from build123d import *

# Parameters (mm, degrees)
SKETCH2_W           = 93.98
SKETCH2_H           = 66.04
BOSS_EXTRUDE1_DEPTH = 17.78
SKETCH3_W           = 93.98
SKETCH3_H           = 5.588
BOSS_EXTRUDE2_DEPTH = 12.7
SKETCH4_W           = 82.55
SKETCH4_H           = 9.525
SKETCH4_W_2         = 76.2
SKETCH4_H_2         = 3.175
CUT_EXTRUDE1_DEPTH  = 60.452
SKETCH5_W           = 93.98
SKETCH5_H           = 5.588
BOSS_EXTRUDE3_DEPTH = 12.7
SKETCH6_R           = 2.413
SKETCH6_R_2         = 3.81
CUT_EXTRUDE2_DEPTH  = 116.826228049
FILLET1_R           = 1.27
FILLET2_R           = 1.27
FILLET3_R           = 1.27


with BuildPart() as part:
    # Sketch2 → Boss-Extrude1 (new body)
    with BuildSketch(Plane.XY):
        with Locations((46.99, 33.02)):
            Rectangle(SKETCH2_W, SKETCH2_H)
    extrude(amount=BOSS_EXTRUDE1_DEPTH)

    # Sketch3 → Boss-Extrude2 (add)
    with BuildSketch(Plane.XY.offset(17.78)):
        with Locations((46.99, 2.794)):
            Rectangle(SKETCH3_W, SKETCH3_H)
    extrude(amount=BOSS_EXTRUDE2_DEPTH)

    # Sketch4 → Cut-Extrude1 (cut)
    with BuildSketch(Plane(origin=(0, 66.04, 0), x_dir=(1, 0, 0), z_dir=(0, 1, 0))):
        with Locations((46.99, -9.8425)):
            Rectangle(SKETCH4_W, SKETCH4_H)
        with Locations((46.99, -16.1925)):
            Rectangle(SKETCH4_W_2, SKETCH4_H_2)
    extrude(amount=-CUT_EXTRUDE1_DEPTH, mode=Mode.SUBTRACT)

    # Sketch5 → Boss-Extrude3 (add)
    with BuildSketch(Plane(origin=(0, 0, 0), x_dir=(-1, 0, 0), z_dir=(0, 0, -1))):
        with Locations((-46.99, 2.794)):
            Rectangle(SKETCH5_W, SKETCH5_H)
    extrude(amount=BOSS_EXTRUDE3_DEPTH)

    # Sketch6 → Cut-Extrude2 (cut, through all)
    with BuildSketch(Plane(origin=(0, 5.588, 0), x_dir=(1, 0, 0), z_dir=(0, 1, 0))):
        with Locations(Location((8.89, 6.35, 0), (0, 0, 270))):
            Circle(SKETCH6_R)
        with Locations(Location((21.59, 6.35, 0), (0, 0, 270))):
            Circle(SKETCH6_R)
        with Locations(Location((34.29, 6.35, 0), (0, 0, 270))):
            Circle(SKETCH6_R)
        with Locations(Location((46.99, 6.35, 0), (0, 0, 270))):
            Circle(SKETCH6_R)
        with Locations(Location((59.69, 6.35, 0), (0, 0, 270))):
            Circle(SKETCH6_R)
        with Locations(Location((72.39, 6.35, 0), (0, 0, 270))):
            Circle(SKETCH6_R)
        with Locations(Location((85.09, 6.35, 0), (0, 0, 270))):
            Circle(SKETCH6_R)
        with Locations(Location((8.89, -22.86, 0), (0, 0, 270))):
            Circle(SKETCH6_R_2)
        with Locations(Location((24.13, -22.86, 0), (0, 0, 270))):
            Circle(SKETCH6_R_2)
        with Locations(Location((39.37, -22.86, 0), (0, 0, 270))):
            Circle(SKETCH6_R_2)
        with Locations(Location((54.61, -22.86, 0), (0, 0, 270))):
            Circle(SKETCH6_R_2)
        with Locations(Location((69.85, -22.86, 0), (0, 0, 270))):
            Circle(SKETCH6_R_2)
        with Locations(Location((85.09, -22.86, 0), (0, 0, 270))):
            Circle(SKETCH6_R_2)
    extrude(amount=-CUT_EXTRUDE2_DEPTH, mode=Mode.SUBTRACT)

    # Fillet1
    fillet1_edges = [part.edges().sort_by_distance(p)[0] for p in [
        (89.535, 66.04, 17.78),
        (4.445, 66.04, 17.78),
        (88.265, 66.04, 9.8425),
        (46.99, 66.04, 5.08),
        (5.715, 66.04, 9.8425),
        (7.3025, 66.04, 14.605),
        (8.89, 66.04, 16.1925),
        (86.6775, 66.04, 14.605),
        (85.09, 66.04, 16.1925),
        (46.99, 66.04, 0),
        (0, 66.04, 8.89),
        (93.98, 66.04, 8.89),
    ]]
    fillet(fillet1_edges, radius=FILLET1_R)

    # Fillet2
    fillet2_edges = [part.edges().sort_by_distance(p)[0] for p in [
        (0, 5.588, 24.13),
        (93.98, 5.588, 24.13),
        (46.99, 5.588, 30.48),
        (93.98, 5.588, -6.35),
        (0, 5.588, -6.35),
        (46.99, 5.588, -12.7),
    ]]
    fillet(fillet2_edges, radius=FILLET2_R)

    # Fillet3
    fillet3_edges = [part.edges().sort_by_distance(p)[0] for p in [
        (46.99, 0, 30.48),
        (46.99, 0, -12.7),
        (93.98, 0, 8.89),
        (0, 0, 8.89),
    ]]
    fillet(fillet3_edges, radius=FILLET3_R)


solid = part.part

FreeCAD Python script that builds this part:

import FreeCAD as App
import Part
import Sketcher
Q = App.Units.Quantity


def edges_at(feature, points):
    """Names of the edges that pass closest to the given points."""
    edges = feature.Shape.Edges
    near = lambda p: min(range(len(edges)), key=lambda i: edges[i].distToShape(Part.Vertex(*p))[0])
    return sorted({f"Edge{near(p) + 1}" for p in points})

doc = App.newDocument("Part")
params = doc.addObject("Spreadsheet::Sheet", "Params")
for row, (alias, value) in enumerate([
    ("sketch1_width", "3.7 in"),
    ("sketch1_height", "2.6 in"),
    ("pad1_length", "0.7 in"),
    ("sketch2_width", "3.7 in"),
    ("sketch2_height", "0.22 in"),
    ("pad2_length", "0.5 in"),
    ("sketch3_width", "3 in"),
    ("sketch3_width2", "3.25 in"),
    ("pocket1_length", "2.38 in"),
    ("sketch4_width", "3.7 in"),
    ("sketch4_height", "0.22 in"),
    ("pad3_length", "0.5 in"),
    ("sketch5_diameter", "0.3 in"),
    ("sketch5_diameter2", "0.19 in"),
    ("fillet_radius", "0.05 in"),
    ("fillet2_radius", "0.05 in"),
    ("fillet3_radius", "0.05 in"),
], start=1):
    params.set(f"A{row}", alias)
    params.set(f"B{row}", "=" + value)
    params.setAlias(f"B{row}", alias)

body = doc.addObject("PartDesign::Body", "Body")

# Sketch on XY plane
sketch1 = body.newObject("Sketcher::SketchObject", "Sketch")
sketch1.AttachmentSupport = (doc.getObject("XY_Plane"), [""])
sketch1.MapMode = "FlatFace"
sketch1.addGeometry(Part.LineSegment(App.Vector(0, 66, 0), App.Vector(0, 0, 0)), False)
sketch1.addGeometry(Part.LineSegment(App.Vector(0, 0, 0), App.Vector(94, 0, 0)), False)
sketch1.addGeometry(Part.LineSegment(App.Vector(94, 0, 0), App.Vector(94, 66, 0)), False)
sketch1.addGeometry(Part.LineSegment(App.Vector(94, 66, 0), App.Vector(0, 66, 0)), False)
sketch1.addConstraint(Sketcher.Constraint("Coincident", 0, 2, 1, 1))
sketch1.addConstraint(Sketcher.Constraint("Coincident", 1, 2, 2, 1))
sketch1.addConstraint(Sketcher.Constraint("Coincident", 2, 2, 3, 1))
sketch1.addConstraint(Sketcher.Constraint("Coincident", 3, 2, 0, 1))
sketch1.addConstraint(Sketcher.Constraint("Vertical", 0))
sketch1.addConstraint(Sketcher.Constraint("Horizontal", 1))
sketch1.addConstraint(Sketcher.Constraint("Vertical", 2))
sketch1.addConstraint(Sketcher.Constraint("Horizontal", 3))
sketch1.addConstraint(Sketcher.Constraint("Coincident", 0, 2, -1, 1))
sketch1.addConstraint(Sketcher.Constraint("DistanceX", 1, 1, 1, 2, Q("3.7 in")))
sketch1.addConstraint(Sketcher.Constraint("DistanceY", 0, 2, 0, 1, Q("2.6 in")))
sketch1.setExpression("Constraints[9]", "Params.sketch1_width")
sketch1.setExpression("Constraints[10]", "Params.sketch1_height")
pad1 = body.newObject("PartDesign::Pad", "Pad")
pad1.Profile = sketch1
pad1.setExpression("Length", "Params.pad1_length")

# Sketch on XY plane
sketch2 = body.newObject("Sketcher::SketchObject", "Sketch001")
sketch2.AttachmentSupport = (doc.getObject("XY_Plane"), [""])
sketch2.MapMode = "FlatFace"
sketch2.AttachmentOffset = App.Placement(App.Vector(0, 0, 0.7 * 25.4), App.Rotation())
sketch2.addGeometry(Part.LineSegment(App.Vector(0, 6, 0), App.Vector(0, 0, 0)), False)
sketch2.addGeometry(Part.LineSegment(App.Vector(0, 0, 0), App.Vector(94, 0, 0)), False)
sketch2.addGeometry(Part.LineSegment(App.Vector(94, 0, 0), App.Vector(94, 6, 0)), False)
sketch2.addGeometry(Part.LineSegment(App.Vector(94, 6, 0), App.Vector(0, 6, 0)), False)
sketch2.addConstraint(Sketcher.Constraint("Coincident", 0, 2, 1, 1))
sketch2.addConstraint(Sketcher.Constraint("Coincident", 1, 2, 2, 1))
sketch2.addConstraint(Sketcher.Constraint("Coincident", 2, 2, 3, 1))
sketch2.addConstraint(Sketcher.Constraint("Coincident", 3, 2, 0, 1))
sketch2.addConstraint(Sketcher.Constraint("Vertical", 0))
sketch2.addConstraint(Sketcher.Constraint("Horizontal", 1))
sketch2.addConstraint(Sketcher.Constraint("Vertical", 2))
sketch2.addConstraint(Sketcher.Constraint("Horizontal", 3))
sketch2.addConstraint(Sketcher.Constraint("Coincident", 0, 2, -1, 1))
sketch2.addConstraint(Sketcher.Constraint("DistanceX", 1, 1, 1, 2, Q("3.7 in")))
sketch2.addConstraint(Sketcher.Constraint("DistanceY", 0, 2, 0, 1, Q("0.22 in")))
sketch2.setExpression("Constraints[9]", "Params.sketch2_width")
sketch2.setExpression("Constraints[10]", "Params.sketch2_height")
pad2 = body.newObject("PartDesign::Pad", "Pad001")
pad2.Profile = sketch2
pad2.setExpression("Length", "Params.pad2_length")

# Sketch on XZ plane
sketch3 = body.newObject("Sketcher::SketchObject", "Sketch002")
sketch3.AttachmentSupport = (doc.getObject("XZ_Plane"), [""])
sketch3.MapMode = "FlatFace"
sketch3.AttachmentOffset = App.Placement(App.Vector(0, 0, -2.6 * 25.4), App.Rotation())
sketch3.addGeometry(Part.LineSegment(App.Vector(5.7, 5.1, 0), App.Vector(5.7, 14.6, 0)), False)
sketch3.addGeometry(Part.LineSegment(App.Vector(5.7, 14.6, 0), App.Vector(8.9, 14.6, 0)), False)
sketch3.addGeometry(Part.LineSegment(App.Vector(8.9, 14.6, 0), App.Vector(8.9, 17.8, 0)), False)
sketch3.addGeometry(Part.LineSegment(App.Vector(8.9, 17.8, 0), App.Vector(85.1, 17.8, 0)), False)
sketch3.addGeometry(Part.LineSegment(App.Vector(85.1, 17.8, 0), App.Vector(85.1, 14.6, 0)), False)
sketch3.addGeometry(Part.LineSegment(App.Vector(85.1, 14.6, 0), App.Vector(88.3, 14.6, 0)), False)
sketch3.addGeometry(Part.LineSegment(App.Vector(88.3, 14.6, 0), App.Vector(88.3, 5.1, 0)), False)
sketch3.addGeometry(Part.LineSegment(App.Vector(88.3, 5.1, 0), App.Vector(5.7, 5.1, 0)), False)
sketch3.addConstraint(Sketcher.Constraint("Coincident", 0, 2, 1, 1))
sketch3.addConstraint(Sketcher.Constraint("Coincident", 1, 2, 2, 1))
sketch3.addConstraint(Sketcher.Constraint("Coincident", 2, 2, 3, 1))
sketch3.addConstraint(Sketcher.Constraint("Coincident", 3, 2, 4, 1))
sketch3.addConstraint(Sketcher.Constraint("Coincident", 4, 2, 5, 1))
sketch3.addConstraint(Sketcher.Constraint("Coincident", 5, 2, 6, 1))
sketch3.addConstraint(Sketcher.Constraint("Coincident", 6, 2, 7, 1))
sketch3.addConstraint(Sketcher.Constraint("Coincident", 7, 2, 0, 1))
sketch3.addConstraint(Sketcher.Constraint("Vertical", 0))
sketch3.addConstraint(Sketcher.Constraint("Horizontal", 1))
sketch3.addConstraint(Sketcher.Constraint("Vertical", 2))
sketch3.addConstraint(Sketcher.Constraint("Horizontal", 3))
sketch3.addConstraint(Sketcher.Constraint("Vertical", 4))
sketch3.addConstraint(Sketcher.Constraint("Horizontal", 5))
sketch3.addConstraint(Sketcher.Constraint("Vertical", 6))
sketch3.addConstraint(Sketcher.Constraint("Horizontal", 7))
sketch3.addConstraint(Sketcher.Constraint("Horizontal", 1, 2, 4, 2))
sketch3.addConstraint(Sketcher.Constraint("Equal", 1, 5))
sketch3.addConstraint(Sketcher.Constraint("Equal", 5, 2))
sketch3.addConstraint(Sketcher.Constraint("DistanceX", 3, 1, 3, 2, Q("3 in")))
sketch3.addConstraint(Sketcher.Constraint("DistanceX", 7, 2, 7, 1, Q("3.25 in")))
sketch3.addConstraint(Sketcher.Constraint("DistanceY", -1, 1, 2, 2, Q("0.7 in")))
sketch3.addConstraint(Sketcher.Constraint("DistanceY", -1, 1, 6, 2, Q("0.2 in")))
sketch3.addConstraint(Sketcher.Constraint("DistanceX", -1, 1, 1, 2, Q("0.35 in")))
sketch3.setExpression("Constraints[19]", "Params.sketch3_width")
sketch3.setExpression("Constraints[20]", "Params.sketch3_width2")
pocket1 = body.newObject("PartDesign::Pocket", "Pocket")
pocket1.Profile = sketch3
pocket1.setExpression("Length", "Params.pocket1_length")
pocket1.Reversed = True

# Sketch on XY plane
sketch4 = body.newObject("Sketcher::SketchObject", "Sketch003")
sketch4.AttachmentSupport = (doc.getObject("XY_Plane"), [""])
sketch4.MapMode = "FlatFace"
sketch4.addGeometry(Part.LineSegment(App.Vector(94, 6, 0), App.Vector(94, 0, 0)), False)
sketch4.addGeometry(Part.LineSegment(App.Vector(94, 0, 0), App.Vector(0, 0, 0)), False)
sketch4.addGeometry(Part.LineSegment(App.Vector(0, 0, 0), App.Vector(0, 6, 0)), False)
sketch4.addGeometry(Part.LineSegment(App.Vector(0, 6, 0), App.Vector(94, 6, 0)), False)
sketch4.addConstraint(Sketcher.Constraint("Coincident", 0, 2, 1, 1))
sketch4.addConstraint(Sketcher.Constraint("Coincident", 1, 2, 2, 1))
sketch4.addConstraint(Sketcher.Constraint("Coincident", 2, 2, 3, 1))
sketch4.addConstraint(Sketcher.Constraint("Coincident", 3, 2, 0, 1))
sketch4.addConstraint(Sketcher.Constraint("Vertical", 0))
sketch4.addConstraint(Sketcher.Constraint("Horizontal", 1))
sketch4.addConstraint(Sketcher.Constraint("Vertical", 2))
sketch4.addConstraint(Sketcher.Constraint("Horizontal", 3))
sketch4.addConstraint(Sketcher.Constraint("Coincident", 1, 2, -1, 1))
sketch4.addConstraint(Sketcher.Constraint("DistanceX", 1, 2, 1, 1, Q("3.7 in")))
sketch4.addConstraint(Sketcher.Constraint("DistanceY", 0, 2, 0, 1, Q("0.22 in")))
sketch4.setExpression("Constraints[9]", "Params.sketch4_width")
sketch4.setExpression("Constraints[10]", "Params.sketch4_height")
pad3 = body.newObject("PartDesign::Pad", "Pad002")
pad3.Profile = sketch4
pad3.setExpression("Length", "Params.pad3_length")
pad3.Reversed = True

# Sketch on XZ plane
sketch5 = body.newObject("Sketcher::SketchObject", "Sketch004")
sketch5.AttachmentSupport = (doc.getObject("XZ_Plane"), [""])
sketch5.MapMode = "FlatFace"
sketch5.AttachmentOffset = App.Placement(App.Vector(0, 0, -0.22 * 25.4), App.Rotation())
sketch5.addGeometry(Part.Circle(App.Vector(8.9, -6.3, 0), App.Vector(0, 0, 1), 2.4), False)
sketch5.addGeometry(Part.Circle(App.Vector(21.6, -6.3, 0), App.Vector(0, 0, 1), 2.4), False)
sketch5.addGeometry(Part.Circle(App.Vector(34.3, -6.3, 0), App.Vector(0, 0, 1), 2.4), False)
sketch5.addGeometry(Part.Circle(App.Vector(47, -6.3, 0), App.Vector(0, 0, 1), 2.4), False)
sketch5.addGeometry(Part.Circle(App.Vector(59.7, -6.3, 0), App.Vector(0, 0, 1), 2.4), False)
sketch5.addGeometry(Part.Circle(App.Vector(72.4, -6.3, 0), App.Vector(0, 0, 1), 2.4), False)
sketch5.addGeometry(Part.Circle(App.Vector(85.1, -6.3, 0), App.Vector(0, 0, 1), 2.4), False)
sketch5.addGeometry(Part.Circle(App.Vector(8.9, 22.9, 0), App.Vector(0, 0, 1), 3.8), False)
sketch5.addGeometry(Part.Circle(App.Vector(24.1, 22.9, 0), App.Vector(0, 0, 1), 3.8), False)
sketch5.addGeometry(Part.Circle(App.Vector(39.4, 22.9, 0), App.Vector(0, 0, 1), 3.8), False)
sketch5.addGeometry(Part.Circle(App.Vector(54.6, 22.9, 0), App.Vector(0, 0, 1), 3.8), False)
sketch5.addGeometry(Part.Circle(App.Vector(69.8, 22.9, 0), App.Vector(0, 0, 1), 3.8), False)
sketch5.addGeometry(Part.Circle(App.Vector(85.1, 22.9, 0), App.Vector(0, 0, 1), 3.8), False)
sketch5.addConstraint(Sketcher.Constraint("Equal", 0, 1))
sketch5.addConstraint(Sketcher.Constraint("Equal", 1, 2))
sketch5.addConstraint(Sketcher.Constraint("Equal", 2, 3))
sketch5.addConstraint(Sketcher.Constraint("Equal", 3, 4))
sketch5.addConstraint(Sketcher.Constraint("Equal", 4, 5))
sketch5.addConstraint(Sketcher.Constraint("Equal", 5, 6))
sketch5.addConstraint(Sketcher.Constraint("Equal", 7, 8))
sketch5.addConstraint(Sketcher.Constraint("Equal", 8, 9))
sketch5.addConstraint(Sketcher.Constraint("Equal", 9, 10))
sketch5.addConstraint(Sketcher.Constraint("Equal", 10, 11))
sketch5.addConstraint(Sketcher.Constraint("Equal", 11, 12))
sketch5.addConstraint(Sketcher.Constraint("Horizontal", 0, 3, 1, 3))
sketch5.addConstraint(Sketcher.Constraint("Horizontal", 1, 3, 2, 3))
sketch5.addConstraint(Sketcher.Constraint("Horizontal", 2, 3, 3, 3))
sketch5.addConstraint(Sketcher.Constraint("Horizontal", 3, 3, 4, 3))
sketch5.addConstraint(Sketcher.Constraint("Horizontal", 4, 3, 5, 3))
sketch5.addConstraint(Sketcher.Constraint("Horizontal", 5, 3, 6, 3))
sketch5.addConstraint(Sketcher.Constraint("Horizontal", 7, 3, 8, 3))
sketch5.addConstraint(Sketcher.Constraint("Horizontal", 8, 3, 9, 3))
sketch5.addConstraint(Sketcher.Constraint("Horizontal", 9, 3, 10, 3))
sketch5.addConstraint(Sketcher.Constraint("Horizontal", 10, 3, 11, 3))
sketch5.addConstraint(Sketcher.Constraint("Horizontal", 11, 3, 12, 3))
sketch5.addConstraint(Sketcher.Constraint("Vertical", 0, 3, 7, 3))
sketch5.addConstraint(Sketcher.Constraint("Vertical", 6, 3, 12, 3))
sketch5.addConstraint(Sketcher.Constraint("Diameter", 7, Q("0.3 in")))
sketch5.addConstraint(Sketcher.Constraint("Diameter", 0, Q("0.19 in")))
sketch5.addConstraint(Sketcher.Constraint("DistanceX", 0, 3, 2, 3, Q("1 in")))
sketch5.addConstraint(Sketcher.Constraint("DistanceX", 1, 3, 3, 3, Q("1 in")))
sketch5.addConstraint(Sketcher.Constraint("DistanceX", 2, 3, 4, 3, Q("1 in")))
sketch5.addConstraint(Sketcher.Constraint("DistanceX", 3, 3, 5, 3, Q("1 in")))
sketch5.addConstraint(Sketcher.Constraint("DistanceX", 4, 3, 6, 3, Q("1 in")))
sketch5.addConstraint(Sketcher.Constraint("DistanceY", -1, 1, 7, 3, Q("0.9 in")))
sketch5.addConstraint(Sketcher.Constraint("DistanceX", 0, 3, 1, 3, Q("0.5 in")))
sketch5.addConstraint(Sketcher.Constraint("DistanceX", 7, 3, 8, 3, Q("0.6 in")))
sketch5.addConstraint(Sketcher.Constraint("DistanceX", 8, 3, 9, 3, Q("0.6 in")))
sketch5.addConstraint(Sketcher.Constraint("DistanceX", 9, 3, 10, 3, Q("0.6 in")))
sketch5.addConstraint(Sketcher.Constraint("DistanceX", 10, 3, 11, 3, Q("0.6 in")))
sketch5.addConstraint(Sketcher.Constraint("DistanceX", -1, 1, 0, 3, Q("0.35 in")))
sketch5.addConstraint(Sketcher.Constraint("DistanceY", 0, 3, -1, 1, Q("0.25 in")))
sketch5.setExpression("Constraints[24]", "Params.sketch5_diameter")
sketch5.setExpression("Constraints[25]", "Params.sketch5_diameter2")
pocket2 = body.newObject("PartDesign::Pocket", "Pocket001")
pocket2.Profile = sketch5
pocket2.Type = "ThroughAll"
pocket2.Reversed = True
doc.recompute()

fillet = body.newObject("PartDesign::Fillet", "Fillet")
fillet.Base = (pocket2, edges_at(pocket2, [
    (89.535, 66.04, 17.78),
    (4.445, 66.04, 17.78),
    (88.265, 66.04, 9.842),
    (46.99, 66.04, 5.08),
    (5.715, 66.04, 9.842),
    (7.303, 66.04, 14.605),
    (8.89, 66.04, 16.192),
    (86.677, 66.04, 14.605),
    (85.09, 66.04, 16.192),
    (46.99, 66.04, 0),
    (0, 66.04, 8.89),
    (93.98, 66.04, 8.89),
]))
fillet.setExpression("Radius", "Params.fillet_radius")
doc.recompute()

fillet2 = body.newObject("PartDesign::Fillet", "Fillet001")
fillet2.Base = (fillet, edges_at(fillet, [
    (0, 5.588, 24.13),
    (93.98, 5.588, 24.13),
    (46.99, 5.588, 30.48),
    (93.98, 5.588, -6.35),
    (0, 5.588, -6.35),
    (46.99, 5.588, -12.7),
]))
fillet2.setExpression("Radius", "Params.fillet2_radius")
doc.recompute()

fillet3 = body.newObject("PartDesign::Fillet", "Fillet002")
fillet3.Base = (fillet2, edges_at(fillet2, [
    (46.99, 0, 30.48),
    (46.99, 0, -12.7),
    (93.98, 0, 8.89),
    (0, 0, 8.89),
]))
fillet3.setExpression("Radius", "Params.fillet3_radius")

doc.recompute()
